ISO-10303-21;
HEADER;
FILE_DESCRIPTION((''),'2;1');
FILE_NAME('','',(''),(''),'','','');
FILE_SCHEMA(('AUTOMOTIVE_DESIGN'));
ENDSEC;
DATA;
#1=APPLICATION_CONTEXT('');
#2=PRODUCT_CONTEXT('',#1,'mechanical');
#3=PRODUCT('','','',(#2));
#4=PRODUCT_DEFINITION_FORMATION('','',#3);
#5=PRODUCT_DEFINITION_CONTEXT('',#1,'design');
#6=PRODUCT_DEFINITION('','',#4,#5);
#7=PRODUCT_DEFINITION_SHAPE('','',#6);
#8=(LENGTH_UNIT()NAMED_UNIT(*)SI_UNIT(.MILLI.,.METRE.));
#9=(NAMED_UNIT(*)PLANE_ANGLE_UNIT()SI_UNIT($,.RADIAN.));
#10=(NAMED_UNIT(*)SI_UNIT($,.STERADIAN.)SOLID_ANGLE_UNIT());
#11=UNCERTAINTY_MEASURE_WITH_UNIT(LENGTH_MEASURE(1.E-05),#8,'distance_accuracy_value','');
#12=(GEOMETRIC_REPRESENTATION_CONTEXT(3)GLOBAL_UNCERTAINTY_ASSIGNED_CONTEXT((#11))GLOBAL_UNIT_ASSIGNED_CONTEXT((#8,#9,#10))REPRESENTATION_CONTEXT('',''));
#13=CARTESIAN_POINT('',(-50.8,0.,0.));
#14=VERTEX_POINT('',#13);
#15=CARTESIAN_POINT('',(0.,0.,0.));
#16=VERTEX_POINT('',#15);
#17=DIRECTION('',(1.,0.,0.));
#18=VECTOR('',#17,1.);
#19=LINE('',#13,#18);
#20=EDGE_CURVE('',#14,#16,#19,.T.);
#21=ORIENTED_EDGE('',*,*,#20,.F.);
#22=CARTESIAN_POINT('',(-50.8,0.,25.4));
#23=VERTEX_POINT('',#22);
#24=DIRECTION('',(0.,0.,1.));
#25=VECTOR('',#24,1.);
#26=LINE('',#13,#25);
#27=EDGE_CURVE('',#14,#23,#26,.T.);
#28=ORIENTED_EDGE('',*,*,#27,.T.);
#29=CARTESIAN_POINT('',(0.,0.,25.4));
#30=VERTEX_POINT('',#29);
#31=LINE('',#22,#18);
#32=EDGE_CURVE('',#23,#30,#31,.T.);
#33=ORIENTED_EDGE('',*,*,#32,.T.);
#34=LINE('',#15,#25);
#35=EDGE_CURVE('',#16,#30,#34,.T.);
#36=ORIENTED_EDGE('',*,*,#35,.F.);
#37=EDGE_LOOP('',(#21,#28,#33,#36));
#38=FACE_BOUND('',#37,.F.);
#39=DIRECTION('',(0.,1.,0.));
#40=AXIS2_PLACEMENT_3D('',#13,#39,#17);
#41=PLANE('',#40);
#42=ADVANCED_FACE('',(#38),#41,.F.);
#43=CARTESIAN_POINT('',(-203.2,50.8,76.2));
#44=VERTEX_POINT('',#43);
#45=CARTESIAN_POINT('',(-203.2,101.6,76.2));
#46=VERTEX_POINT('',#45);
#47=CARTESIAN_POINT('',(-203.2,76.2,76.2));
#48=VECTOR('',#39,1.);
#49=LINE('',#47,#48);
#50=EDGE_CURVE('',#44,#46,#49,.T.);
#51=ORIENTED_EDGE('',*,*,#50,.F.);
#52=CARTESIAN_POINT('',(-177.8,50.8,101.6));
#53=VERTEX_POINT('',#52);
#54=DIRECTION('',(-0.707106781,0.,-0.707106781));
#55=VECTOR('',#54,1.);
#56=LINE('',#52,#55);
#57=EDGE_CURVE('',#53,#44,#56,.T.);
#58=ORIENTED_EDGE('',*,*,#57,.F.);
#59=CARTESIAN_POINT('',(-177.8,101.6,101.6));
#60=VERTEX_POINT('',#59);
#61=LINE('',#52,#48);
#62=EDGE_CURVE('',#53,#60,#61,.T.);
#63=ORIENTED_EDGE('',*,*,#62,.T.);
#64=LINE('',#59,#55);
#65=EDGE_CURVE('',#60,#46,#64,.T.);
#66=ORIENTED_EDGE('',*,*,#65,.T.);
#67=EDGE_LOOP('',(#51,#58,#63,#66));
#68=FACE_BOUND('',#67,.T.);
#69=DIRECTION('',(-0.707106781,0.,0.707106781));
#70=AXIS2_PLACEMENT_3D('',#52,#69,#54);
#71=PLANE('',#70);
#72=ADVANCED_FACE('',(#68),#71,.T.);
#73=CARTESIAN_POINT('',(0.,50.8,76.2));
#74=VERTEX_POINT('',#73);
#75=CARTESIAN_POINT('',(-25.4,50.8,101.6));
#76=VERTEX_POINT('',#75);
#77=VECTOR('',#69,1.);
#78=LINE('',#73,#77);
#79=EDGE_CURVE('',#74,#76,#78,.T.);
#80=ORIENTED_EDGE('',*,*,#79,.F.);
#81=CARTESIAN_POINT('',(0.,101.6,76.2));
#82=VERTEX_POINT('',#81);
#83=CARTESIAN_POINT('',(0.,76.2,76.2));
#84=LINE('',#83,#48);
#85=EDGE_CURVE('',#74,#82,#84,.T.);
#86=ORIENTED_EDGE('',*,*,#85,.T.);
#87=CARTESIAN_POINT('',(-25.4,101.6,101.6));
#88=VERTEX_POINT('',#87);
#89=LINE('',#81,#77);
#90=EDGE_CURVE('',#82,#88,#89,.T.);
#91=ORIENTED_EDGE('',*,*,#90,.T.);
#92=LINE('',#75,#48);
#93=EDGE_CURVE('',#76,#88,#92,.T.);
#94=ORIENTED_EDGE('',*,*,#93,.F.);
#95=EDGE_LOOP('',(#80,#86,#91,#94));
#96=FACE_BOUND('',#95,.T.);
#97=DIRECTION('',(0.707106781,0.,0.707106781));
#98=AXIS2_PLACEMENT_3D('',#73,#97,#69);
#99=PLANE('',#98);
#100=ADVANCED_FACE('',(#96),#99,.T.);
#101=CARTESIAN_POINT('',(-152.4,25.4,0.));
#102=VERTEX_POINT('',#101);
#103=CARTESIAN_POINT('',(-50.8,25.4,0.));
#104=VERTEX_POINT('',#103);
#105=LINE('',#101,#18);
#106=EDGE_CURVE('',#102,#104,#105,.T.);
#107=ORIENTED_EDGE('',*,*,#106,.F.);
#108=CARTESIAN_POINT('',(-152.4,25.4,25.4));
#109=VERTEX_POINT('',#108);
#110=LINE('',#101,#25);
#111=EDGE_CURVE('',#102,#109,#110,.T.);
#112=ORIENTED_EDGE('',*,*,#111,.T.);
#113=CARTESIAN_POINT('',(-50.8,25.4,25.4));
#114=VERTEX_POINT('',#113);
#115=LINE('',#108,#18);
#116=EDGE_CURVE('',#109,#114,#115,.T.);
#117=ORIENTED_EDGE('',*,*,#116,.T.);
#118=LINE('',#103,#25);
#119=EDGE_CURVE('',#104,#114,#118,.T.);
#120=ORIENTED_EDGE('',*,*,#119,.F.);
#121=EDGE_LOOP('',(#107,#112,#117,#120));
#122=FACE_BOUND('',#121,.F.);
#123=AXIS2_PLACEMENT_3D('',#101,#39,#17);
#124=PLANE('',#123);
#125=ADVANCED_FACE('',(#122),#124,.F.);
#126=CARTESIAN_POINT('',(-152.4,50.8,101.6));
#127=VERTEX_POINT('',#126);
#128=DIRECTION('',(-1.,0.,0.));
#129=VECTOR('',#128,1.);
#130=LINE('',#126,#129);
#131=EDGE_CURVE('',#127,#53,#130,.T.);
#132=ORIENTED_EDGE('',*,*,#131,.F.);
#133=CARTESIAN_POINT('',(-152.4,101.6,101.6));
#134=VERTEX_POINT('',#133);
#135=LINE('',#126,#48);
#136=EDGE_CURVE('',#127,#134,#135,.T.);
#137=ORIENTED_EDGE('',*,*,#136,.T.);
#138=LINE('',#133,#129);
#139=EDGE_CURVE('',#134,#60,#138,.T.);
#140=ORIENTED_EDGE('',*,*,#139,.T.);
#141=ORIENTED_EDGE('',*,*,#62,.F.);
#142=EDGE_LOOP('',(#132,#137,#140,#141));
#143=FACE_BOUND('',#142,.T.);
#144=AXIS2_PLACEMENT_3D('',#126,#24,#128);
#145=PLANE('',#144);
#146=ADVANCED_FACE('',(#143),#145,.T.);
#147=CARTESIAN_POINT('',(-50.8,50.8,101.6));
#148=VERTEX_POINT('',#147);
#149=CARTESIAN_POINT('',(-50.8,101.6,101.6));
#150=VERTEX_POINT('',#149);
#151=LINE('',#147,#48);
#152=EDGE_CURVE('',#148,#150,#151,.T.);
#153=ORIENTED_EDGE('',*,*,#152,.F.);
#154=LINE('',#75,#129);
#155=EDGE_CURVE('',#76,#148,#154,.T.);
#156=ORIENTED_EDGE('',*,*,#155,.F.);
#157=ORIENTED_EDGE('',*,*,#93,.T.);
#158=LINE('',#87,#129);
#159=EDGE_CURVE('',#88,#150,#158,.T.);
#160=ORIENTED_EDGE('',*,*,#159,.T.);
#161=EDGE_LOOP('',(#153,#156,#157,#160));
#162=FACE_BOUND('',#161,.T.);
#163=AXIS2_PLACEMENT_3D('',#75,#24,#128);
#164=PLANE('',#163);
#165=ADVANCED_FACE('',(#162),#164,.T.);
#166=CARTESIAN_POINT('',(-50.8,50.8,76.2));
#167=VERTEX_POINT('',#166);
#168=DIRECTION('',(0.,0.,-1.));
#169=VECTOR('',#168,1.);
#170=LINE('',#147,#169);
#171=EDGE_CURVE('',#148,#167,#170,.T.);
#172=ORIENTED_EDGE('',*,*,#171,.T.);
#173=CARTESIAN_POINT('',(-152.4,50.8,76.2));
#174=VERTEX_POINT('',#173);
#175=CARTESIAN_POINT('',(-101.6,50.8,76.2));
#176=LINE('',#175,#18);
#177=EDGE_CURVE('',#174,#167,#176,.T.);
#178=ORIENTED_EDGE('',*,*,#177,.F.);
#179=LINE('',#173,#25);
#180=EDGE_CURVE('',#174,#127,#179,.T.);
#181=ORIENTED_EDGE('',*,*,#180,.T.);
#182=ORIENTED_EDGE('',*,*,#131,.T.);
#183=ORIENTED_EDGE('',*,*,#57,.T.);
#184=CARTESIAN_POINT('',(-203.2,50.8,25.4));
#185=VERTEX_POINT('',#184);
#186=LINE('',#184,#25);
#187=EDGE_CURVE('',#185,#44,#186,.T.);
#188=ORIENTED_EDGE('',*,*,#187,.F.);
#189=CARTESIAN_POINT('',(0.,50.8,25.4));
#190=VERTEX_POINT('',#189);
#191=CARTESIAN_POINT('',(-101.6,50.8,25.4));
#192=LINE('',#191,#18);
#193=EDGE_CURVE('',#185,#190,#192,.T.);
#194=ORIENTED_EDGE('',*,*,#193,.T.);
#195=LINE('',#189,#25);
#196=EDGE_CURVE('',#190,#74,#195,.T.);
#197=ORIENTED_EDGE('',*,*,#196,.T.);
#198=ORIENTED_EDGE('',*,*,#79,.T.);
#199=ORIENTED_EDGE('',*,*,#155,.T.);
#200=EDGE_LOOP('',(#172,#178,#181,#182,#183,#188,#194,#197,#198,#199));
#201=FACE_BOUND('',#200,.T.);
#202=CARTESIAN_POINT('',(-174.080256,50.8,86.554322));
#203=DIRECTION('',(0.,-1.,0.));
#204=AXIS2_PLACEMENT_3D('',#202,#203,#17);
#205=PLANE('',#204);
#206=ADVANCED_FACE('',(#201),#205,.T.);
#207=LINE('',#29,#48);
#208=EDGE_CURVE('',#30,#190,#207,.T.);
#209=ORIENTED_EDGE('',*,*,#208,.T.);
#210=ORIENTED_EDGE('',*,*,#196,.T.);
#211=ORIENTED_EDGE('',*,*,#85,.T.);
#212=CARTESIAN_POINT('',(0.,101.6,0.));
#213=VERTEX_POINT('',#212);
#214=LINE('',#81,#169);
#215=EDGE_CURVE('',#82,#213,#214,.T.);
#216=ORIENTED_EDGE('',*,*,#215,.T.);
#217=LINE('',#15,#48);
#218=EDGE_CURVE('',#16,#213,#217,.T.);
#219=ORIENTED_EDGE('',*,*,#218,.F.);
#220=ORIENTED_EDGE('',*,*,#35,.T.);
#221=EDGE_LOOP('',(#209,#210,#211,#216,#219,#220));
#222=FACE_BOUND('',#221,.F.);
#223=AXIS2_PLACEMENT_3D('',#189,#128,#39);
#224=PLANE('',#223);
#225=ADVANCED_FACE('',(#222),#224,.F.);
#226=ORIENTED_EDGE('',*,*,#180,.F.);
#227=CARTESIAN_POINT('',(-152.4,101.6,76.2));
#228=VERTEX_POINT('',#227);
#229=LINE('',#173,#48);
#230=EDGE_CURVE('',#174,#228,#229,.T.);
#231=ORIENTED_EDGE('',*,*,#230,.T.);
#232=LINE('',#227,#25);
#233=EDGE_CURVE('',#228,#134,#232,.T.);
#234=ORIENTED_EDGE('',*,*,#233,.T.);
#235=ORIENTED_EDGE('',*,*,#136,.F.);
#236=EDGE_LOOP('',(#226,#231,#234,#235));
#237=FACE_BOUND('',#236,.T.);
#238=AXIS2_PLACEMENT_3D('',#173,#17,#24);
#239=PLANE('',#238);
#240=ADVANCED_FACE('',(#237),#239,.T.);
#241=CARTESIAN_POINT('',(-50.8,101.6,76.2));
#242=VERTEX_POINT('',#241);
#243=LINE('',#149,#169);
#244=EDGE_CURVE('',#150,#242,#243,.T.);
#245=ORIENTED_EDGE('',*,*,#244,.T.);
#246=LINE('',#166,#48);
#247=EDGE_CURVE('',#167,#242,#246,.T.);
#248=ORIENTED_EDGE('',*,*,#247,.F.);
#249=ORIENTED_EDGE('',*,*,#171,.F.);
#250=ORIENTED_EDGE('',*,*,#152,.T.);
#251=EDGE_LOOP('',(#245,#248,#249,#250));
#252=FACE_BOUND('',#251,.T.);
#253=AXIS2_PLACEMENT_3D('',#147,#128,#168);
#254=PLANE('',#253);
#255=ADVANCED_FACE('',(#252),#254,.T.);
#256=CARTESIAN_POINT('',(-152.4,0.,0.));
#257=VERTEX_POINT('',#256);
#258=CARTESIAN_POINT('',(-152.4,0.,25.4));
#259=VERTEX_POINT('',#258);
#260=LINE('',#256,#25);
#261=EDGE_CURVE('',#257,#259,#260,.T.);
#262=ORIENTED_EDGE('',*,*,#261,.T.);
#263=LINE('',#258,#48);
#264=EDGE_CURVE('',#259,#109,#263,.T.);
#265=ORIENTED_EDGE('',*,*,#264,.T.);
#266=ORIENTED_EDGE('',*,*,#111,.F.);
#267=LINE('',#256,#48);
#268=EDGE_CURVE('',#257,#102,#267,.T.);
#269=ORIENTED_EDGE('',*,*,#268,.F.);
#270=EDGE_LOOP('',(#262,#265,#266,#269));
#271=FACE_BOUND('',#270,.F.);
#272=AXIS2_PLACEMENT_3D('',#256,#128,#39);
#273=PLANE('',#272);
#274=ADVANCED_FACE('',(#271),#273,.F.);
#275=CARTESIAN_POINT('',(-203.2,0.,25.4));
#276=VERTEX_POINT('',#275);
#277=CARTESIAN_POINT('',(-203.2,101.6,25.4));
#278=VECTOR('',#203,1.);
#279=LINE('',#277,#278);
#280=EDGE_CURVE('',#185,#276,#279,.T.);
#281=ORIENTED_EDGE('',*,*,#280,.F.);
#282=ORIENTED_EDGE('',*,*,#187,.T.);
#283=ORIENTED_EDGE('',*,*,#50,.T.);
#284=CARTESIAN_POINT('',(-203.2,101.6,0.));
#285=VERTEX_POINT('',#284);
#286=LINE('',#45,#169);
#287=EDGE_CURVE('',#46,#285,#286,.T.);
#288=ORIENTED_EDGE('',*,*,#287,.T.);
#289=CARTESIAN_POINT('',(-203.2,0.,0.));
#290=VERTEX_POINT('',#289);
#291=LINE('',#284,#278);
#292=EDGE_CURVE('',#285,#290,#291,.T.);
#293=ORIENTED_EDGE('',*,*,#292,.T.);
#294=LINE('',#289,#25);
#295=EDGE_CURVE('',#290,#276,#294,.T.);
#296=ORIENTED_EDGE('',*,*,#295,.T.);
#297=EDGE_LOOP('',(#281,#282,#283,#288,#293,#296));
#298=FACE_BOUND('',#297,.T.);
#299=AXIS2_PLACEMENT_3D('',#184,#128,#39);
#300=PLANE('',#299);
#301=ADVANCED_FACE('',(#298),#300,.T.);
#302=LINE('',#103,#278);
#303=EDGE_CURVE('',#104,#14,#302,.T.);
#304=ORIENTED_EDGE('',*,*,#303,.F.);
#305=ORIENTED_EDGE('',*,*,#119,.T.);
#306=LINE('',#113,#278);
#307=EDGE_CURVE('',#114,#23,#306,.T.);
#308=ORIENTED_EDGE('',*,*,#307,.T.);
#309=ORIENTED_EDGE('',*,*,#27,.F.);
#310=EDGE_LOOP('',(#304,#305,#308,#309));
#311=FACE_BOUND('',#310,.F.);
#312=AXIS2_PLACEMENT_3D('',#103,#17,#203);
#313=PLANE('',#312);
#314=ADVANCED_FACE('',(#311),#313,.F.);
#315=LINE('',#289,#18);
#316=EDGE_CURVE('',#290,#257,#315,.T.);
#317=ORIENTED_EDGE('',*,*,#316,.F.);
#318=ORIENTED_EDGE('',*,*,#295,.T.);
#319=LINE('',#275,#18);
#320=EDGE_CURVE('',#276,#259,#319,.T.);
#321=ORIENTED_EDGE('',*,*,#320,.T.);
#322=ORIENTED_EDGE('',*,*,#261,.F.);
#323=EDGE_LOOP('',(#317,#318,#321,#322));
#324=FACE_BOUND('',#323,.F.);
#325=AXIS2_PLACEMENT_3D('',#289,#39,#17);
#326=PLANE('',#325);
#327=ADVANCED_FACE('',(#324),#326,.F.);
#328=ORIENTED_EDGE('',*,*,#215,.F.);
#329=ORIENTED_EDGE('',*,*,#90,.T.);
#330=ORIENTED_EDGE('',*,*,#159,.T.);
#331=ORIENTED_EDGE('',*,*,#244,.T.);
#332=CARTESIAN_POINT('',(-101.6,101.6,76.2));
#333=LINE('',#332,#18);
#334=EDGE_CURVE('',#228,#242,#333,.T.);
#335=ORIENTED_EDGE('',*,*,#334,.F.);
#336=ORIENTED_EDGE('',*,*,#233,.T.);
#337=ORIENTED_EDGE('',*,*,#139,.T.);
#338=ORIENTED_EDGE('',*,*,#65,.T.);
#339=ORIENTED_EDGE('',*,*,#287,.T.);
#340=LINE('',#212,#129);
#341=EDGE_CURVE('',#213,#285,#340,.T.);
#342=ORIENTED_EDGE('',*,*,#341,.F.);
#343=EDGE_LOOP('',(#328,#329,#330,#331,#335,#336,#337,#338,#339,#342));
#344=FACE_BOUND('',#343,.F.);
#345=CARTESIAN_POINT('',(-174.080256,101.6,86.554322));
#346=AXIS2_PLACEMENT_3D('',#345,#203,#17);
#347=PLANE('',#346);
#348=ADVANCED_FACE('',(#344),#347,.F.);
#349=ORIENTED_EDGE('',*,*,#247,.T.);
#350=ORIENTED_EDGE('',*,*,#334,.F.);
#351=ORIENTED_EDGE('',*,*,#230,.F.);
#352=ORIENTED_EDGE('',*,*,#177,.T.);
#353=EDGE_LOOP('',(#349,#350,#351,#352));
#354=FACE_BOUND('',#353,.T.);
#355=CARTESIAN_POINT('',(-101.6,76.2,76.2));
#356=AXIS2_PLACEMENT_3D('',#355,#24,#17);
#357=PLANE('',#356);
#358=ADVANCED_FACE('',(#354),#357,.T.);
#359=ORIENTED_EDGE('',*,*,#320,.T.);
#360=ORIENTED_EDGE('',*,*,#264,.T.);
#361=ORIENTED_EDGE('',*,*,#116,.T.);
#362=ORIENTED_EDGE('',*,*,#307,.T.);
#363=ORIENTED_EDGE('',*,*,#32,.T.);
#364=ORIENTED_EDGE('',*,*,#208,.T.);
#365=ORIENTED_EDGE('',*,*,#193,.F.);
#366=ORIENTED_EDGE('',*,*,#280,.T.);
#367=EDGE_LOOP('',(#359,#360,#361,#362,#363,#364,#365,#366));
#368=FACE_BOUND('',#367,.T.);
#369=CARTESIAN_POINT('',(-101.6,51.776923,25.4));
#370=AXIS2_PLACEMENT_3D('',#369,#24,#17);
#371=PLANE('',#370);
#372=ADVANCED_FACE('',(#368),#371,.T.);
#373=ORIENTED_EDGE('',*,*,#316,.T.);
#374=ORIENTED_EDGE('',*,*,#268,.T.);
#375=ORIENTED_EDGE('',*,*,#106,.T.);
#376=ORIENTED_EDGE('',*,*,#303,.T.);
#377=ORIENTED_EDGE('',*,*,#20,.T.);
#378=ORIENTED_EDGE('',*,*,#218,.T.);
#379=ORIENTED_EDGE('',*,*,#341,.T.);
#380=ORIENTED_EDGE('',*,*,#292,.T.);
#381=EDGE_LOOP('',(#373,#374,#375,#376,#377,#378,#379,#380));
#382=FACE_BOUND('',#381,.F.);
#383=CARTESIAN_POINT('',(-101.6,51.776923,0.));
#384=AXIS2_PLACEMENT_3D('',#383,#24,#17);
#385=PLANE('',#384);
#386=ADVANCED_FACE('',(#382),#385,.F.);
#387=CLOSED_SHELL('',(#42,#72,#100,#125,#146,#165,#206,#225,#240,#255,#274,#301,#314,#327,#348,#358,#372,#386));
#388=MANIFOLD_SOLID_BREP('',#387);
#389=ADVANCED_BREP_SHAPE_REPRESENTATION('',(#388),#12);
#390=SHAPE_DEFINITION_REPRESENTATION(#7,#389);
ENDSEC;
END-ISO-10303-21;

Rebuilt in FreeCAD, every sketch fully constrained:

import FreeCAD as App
import Part
import Sketcher

V = App.Vector
Q = App.Units.Quantity

doc = App.newDocument("Part")
body = doc.addObject("PartDesign::Body", "Body")

# Sketch on XY plane
sketch1 = doc.addObject("Sketcher::SketchObject", "Sketch")
body.addObject(sketch1)
sketch1.AttachmentSupport = (doc.XY_Plane, [""])
sketch1.MapMode = "FlatFace"
sketch1.addGeometry([
    Part.LineSegment(V(-51, 0, 0), V(0, 0, 0)),  # 0
    Part.LineSegment(V(0, 0, 0), V(0, 102, 0)),  # 1
    Part.LineSegment(V(0, 102, 0), V(-203, 102, 0)),  # 2
    Part.LineSegment(V(-203, 102, 0), V(-203, 0, 0)),  # 3
    Part.LineSegment(V(-203, 0, 0), V(-152, 0, 0)),  # 4
    Part.LineSegment(V(-152, 0, 0), V(-152, 25, 0)),  # 5
    Part.LineSegment(V(-152, 25, 0), V(-51, 25, 0)),  # 6
    Part.LineSegment(V(-51, 25, 0), V(-51, 0, 0)),  # 7
], False)
sketch1.addConstraint([
    Sketcher.Constraint("Coincident", 0, 2, 1, 1),
    Sketcher.Constraint("Coincident", 1, 2, 2, 1),
    Sketcher.Constraint("Coincident", 2, 2, 3, 1),
    Sketcher.Constraint("Coincident", 3, 2, 4, 1),
    Sketcher.Constraint("Coincident", 4, 2, 5, 1),
    Sketcher.Constraint("Coincident", 5, 2, 6, 1),
    Sketcher.Constraint("Coincident", 6, 2, 7, 1),
    Sketcher.Constraint("Coincident", 7, 2, 0, 1),
    Sketcher.Constraint("Horizontal", 0),
    Sketcher.Constraint("Vertical", 1),
    Sketcher.Constraint("Horizontal", 2),
    Sketcher.Constraint("Vertical", 3),
    Sketcher.Constraint("Horizontal", 4),
    Sketcher.Constraint("Vertical", 5),
    Sketcher.Constraint("Horizontal", 6),
    Sketcher.Constraint("Vertical", 7),
    Sketcher.Constraint("Coincident", 0, 2, -1, 1),
    Sketcher.Constraint("PointOnObject", 3, 2, -1),
    Sketcher.Constraint("Equal", 0, 4),
    Sketcher.Constraint("Equal", 6, 1),
    Sketcher.Constraint("DistanceX", 0, 1, 0, 2, Q("2 in")),
    Sketcher.Constraint("DistanceX", 2, 2, 2, 1, Q("8 in")),
    Sketcher.Constraint("DistanceY", 5, 1, 5, 2, Q("1 in")),
])
pad1 = doc.addObject("PartDesign::Pad", "Pad")
body.addObject(pad1)
pad1.Profile = sketch1
pad1.Length = Q("1 in")

# Sketch on XY plane
sketch2 = doc.addObject("Sketcher::SketchObject", "Sketch001")
body.addObject(sketch2)
sketch2.AttachmentSupport = (doc.XY_Plane, [""])
sketch2.MapMode = "FlatFace"
sketch2.AttachmentOffset = App.Placement(V(0, 0, 1 * 25.4), App.Rotation())
sketch2.addGeometry([
    Part.LineSegment(V(-203, 102, 0), V(-203, 51, 0)),
    Part.LineSegment(V(-203, 51, 0), V(0, 51, 0)),
    Part.LineSegment(V(0, 51, 0), V(0, 102, 0)),
    Part.LineSegment(V(0, 102, 0), V(-203, 102, 0)),
], False)
sketch2.addConstraint([
    Sketcher.Constraint("Coincident", 0, 2, 1, 1),
    Sketcher.Constraint("Coincident", 1, 2, 2, 1),
    Sketcher.Constraint("Coincident", 2, 2, 3, 1),
    Sketcher.Constraint("Coincident", 3, 2, 0, 1),
    Sketcher.Constraint("Vertical", 0),
    Sketcher.Constraint("Horizontal", 1),
    Sketcher.Constraint("Vertical", 2),
    Sketcher.Constraint("Horizontal", 3),
    Sketcher.Constraint("PointOnObject", 1, 2, -2),
    Sketcher.Constraint("DistanceX", 1, 1, 1, 2, Q("8 in")),
    Sketcher.Constraint("DistanceY", 0, 2, 0, 1, Q("2 in")),
    Sketcher.Constraint("DistanceY", -1, 1, 0, 2, Q("2 in")),
])
pad2 = doc.addObject("PartDesign::Pad", "Pad001")
body.addObject(pad2)
pad2.Profile = sketch2
pad2.Length = Q("2 in")

# Sketch on XZ plane
sketch3 = doc.addObject("Sketcher::SketchObject", "Sketch002")
body.addObject(sketch3)
sketch3.AttachmentSupport = (doc.XZ_Plane, [""])
sketch3.MapMode = "FlatFace"
sketch3.AttachmentOffset = App.Placement(V(0, 0, -2 * 25.4), App.Rotation())
sketch3.addGeometry([
    Part.LineSegment(V(-203, 76, 0), V(-152, 76, 0)),  # 0
    Part.LineSegment(V(-152, 76, 0), V(-152, 102, 0)),  # 1
    Part.LineSegment(V(-152, 102, 0), V(-178, 102, 0)),  # 2
    Part.LineSegment(V(-178, 102, 0), V(-203, 76, 0)),  # 3
    Part.LineSegment(V(-51, 76, 0), V(0, 76, 0)),  # 4
    Part.LineSegment(V(0, 76, 0), V(-25, 102, 0)),  # 5
    Part.LineSegment(V(-25, 102, 0), V(-51, 102, 0)),  # 6
    Part.LineSegment(V(-51, 102, 0), V(-51, 76, 0)),  # 7
], False)
sketch3.addConstraint([
    Sketcher.Constraint("Coincident", 0, 2, 1, 1),
    Sketcher.Constraint("Coincident", 1, 2, 2, 1),
    Sketcher.Constraint("Coincident", 2, 2, 3, 1),
    Sketcher.Constraint("Coincident", 3, 2, 0, 1),
    Sketcher.Constraint("Coincident", 4, 2, 5, 1),
    Sketcher.Constraint("Coincident", 5, 2, 6, 1),
    Sketcher.Constraint("Coincident", 6, 2, 7, 1),
    Sketcher.Constraint("Coincident", 7, 2, 4, 1),
    Sketcher.Constraint("Horizontal", 0),
    Sketcher.Constraint("Vertical", 1),
    Sketcher.Constraint("Horizontal", 2),
    Sketcher.Constraint("Horizontal", 4),
    Sketcher.Constraint("Horizontal", 6),
    Sketcher.Constraint("Vertical", 7),
    Sketcher.Constraint("PointOnObject", 4, 2, -2),
    Sketcher.Constraint("Perpendicular", 3, 5),
    Sketcher.Constraint("Horizontal", 3, 2, 4, 2),
    Sketcher.Constraint("Horizontal", 2, 2, 5, 2),
    Sketcher.Constraint("Equal", 0, 4),
    Sketcher.Constraint("Equal", 2, 6),
    Sketcher.Constraint("Equal", 6, 1),
    Sketcher.Constraint("DistanceX", 0, 1, 0, 2, Q("2 in")),
    Sketcher.Constraint("DistanceX", 0, 2, -1, 1, Q("6 in")),
    Sketcher.Constraint("DistanceY", -1, 1, 0, 2, Q("3 in")),
])
pad3 = doc.addObject("PartDesign::Pad", "Pad002")
body.addObject(pad3)
pad3.Profile = sketch3
pad3.Length = Q("2 in")
pad3.Reversed = True

doc.recompute()
